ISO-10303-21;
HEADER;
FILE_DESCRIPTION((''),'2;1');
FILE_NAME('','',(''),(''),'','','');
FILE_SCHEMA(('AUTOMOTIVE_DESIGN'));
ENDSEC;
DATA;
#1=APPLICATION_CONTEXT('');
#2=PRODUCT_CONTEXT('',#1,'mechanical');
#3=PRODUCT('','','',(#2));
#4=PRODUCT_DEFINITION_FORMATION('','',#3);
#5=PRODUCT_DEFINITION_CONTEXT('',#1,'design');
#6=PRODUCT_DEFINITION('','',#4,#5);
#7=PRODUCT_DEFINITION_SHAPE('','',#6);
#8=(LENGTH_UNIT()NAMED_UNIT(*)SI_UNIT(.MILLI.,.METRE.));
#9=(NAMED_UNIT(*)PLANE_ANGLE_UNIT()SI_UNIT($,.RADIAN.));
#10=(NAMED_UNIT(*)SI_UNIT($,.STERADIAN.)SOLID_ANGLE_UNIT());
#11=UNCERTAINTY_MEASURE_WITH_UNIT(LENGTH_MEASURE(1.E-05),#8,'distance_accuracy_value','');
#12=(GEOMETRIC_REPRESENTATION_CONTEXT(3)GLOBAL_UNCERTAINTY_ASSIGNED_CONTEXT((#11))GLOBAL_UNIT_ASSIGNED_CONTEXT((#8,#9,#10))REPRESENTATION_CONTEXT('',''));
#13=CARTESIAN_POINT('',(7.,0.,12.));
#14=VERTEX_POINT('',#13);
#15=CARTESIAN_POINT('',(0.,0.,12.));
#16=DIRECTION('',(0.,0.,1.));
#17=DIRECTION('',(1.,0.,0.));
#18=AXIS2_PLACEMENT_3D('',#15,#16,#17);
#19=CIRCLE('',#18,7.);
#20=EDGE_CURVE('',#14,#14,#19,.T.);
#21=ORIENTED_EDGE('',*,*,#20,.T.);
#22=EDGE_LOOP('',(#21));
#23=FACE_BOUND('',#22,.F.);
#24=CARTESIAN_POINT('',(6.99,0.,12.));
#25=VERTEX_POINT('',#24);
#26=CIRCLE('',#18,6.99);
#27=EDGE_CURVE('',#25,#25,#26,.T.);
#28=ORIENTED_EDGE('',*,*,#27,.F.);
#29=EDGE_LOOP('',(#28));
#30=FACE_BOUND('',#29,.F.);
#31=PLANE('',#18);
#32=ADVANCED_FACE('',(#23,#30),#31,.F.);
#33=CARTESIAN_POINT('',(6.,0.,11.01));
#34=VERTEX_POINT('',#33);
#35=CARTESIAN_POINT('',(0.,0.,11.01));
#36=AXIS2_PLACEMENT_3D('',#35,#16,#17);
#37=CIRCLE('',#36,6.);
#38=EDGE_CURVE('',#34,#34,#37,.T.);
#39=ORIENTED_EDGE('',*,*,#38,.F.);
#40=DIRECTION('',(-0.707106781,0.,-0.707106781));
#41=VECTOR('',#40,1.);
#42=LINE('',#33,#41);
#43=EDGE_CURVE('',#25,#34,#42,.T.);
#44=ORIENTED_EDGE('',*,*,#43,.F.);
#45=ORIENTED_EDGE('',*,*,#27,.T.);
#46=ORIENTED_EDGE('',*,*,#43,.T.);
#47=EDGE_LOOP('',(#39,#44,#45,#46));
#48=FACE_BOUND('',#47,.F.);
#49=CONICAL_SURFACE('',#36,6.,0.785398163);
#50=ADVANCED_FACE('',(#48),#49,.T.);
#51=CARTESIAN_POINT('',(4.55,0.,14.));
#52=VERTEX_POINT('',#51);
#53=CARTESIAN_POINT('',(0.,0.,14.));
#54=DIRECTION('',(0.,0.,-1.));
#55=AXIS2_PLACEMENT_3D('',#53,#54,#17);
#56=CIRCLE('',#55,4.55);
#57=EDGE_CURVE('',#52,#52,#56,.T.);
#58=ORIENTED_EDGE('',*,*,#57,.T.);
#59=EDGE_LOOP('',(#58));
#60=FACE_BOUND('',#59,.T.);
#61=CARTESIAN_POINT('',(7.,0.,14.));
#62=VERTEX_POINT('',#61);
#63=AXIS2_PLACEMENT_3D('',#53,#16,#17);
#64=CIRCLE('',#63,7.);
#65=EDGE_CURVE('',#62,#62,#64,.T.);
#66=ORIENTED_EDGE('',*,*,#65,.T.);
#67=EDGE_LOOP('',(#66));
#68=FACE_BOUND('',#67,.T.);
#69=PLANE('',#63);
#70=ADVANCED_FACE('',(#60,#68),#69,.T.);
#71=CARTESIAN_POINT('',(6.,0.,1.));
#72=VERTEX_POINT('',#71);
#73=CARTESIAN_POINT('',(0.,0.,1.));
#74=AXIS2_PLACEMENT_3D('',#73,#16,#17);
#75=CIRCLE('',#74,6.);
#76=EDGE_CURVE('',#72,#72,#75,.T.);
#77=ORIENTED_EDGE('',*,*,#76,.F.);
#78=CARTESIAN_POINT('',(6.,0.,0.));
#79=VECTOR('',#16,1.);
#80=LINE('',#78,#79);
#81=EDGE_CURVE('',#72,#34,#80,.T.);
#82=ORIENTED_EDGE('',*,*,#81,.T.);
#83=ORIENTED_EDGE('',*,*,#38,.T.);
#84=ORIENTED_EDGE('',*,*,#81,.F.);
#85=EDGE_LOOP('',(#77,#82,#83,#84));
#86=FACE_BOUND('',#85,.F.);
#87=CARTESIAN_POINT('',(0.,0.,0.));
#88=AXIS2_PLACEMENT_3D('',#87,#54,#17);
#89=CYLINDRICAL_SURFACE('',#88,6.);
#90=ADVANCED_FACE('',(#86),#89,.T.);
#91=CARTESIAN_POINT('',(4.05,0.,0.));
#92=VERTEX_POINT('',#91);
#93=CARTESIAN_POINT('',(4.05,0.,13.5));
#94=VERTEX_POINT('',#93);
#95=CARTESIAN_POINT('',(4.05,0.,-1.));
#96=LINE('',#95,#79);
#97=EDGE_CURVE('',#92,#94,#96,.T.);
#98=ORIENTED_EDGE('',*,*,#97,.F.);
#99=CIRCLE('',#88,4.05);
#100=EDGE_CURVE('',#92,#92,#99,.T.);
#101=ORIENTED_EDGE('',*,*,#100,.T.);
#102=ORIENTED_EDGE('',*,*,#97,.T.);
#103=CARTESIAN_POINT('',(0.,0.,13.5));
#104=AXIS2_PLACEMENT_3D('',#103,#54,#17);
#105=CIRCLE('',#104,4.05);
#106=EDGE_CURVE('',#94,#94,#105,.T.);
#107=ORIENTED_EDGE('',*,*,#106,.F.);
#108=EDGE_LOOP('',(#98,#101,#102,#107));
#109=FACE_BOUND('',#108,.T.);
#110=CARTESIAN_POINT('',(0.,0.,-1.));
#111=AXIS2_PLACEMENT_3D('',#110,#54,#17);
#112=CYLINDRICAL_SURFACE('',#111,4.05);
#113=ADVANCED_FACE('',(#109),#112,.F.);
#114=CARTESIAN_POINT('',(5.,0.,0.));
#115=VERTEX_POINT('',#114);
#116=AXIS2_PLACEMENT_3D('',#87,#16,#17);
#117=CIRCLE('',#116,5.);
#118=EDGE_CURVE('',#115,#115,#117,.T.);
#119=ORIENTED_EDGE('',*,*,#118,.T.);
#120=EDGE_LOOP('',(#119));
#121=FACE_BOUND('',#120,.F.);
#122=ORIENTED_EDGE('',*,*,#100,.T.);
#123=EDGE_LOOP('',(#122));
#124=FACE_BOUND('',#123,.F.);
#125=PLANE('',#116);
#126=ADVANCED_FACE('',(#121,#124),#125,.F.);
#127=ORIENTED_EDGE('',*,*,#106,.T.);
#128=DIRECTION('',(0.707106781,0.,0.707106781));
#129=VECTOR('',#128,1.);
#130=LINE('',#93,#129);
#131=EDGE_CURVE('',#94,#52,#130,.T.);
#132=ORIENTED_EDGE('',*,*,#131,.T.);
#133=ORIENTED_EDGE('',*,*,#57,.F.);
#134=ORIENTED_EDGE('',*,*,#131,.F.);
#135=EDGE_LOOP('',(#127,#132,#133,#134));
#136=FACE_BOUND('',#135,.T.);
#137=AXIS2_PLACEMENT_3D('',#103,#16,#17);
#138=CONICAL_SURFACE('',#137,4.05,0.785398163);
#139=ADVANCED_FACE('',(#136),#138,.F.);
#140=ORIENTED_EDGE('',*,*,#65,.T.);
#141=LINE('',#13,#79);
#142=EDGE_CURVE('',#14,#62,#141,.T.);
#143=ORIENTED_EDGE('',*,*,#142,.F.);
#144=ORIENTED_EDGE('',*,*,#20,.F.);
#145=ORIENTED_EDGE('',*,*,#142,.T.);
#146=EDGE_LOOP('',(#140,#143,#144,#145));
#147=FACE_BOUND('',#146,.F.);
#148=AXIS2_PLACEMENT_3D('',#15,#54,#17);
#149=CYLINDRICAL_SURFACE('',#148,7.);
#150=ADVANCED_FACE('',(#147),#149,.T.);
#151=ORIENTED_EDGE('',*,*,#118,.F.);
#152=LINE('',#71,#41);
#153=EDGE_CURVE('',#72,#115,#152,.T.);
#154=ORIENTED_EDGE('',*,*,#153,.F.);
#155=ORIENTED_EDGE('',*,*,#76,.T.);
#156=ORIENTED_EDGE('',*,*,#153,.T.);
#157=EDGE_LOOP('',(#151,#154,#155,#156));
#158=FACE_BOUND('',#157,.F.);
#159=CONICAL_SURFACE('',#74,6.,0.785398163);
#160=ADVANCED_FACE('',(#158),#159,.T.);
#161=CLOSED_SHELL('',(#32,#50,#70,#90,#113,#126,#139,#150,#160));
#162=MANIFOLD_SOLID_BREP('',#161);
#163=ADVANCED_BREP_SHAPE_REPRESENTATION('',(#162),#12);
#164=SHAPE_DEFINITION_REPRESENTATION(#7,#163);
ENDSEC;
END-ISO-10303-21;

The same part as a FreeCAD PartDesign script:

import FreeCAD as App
import Part
import Sketcher

V = App.Vector
Q = App.Units.Quantity


def edges_at(feature, points):
    """Names of the edges that pass closest to the given points."""
    edges = feature.Shape.Edges
    near = lambda p: min(range(len(edges)), key=lambda i: edges[i].distToShape(Part.Vertex(*p))[0])
    return sorted({f"Edge{near(p) + 1}" for p in points})

doc = App.newDocument("Part")
body = doc.addObject("PartDesign::Body", "Body")

# Sketch on XY plane
sketch1 = doc.addObject("Sketcher::SketchObject", "Sketch")
body.addObject(sketch1)
sketch1.AttachmentSupport = (doc.XY_Plane, [""])
sketch1.MapMode = "FlatFace"
sketch1.AttachmentOffset = App.Placement(V(0, 0, -1), App.Rotation())
sketch1.addGeometry(Part.Circle(V(0, 0, 0), V(0, 0, 1), 4), False)
sketch1.addConstraint([
    Sketcher.Constraint("Coincident", 0, 3, -1, 1),
    Sketcher.Constraint("Diameter", 0, Q("8.1 mm")),
])
pad1 = doc.addObject("PartDesign::Pad", "Pad")
body.addObject(pad1)
pad1.Profile = sketch1
pad1.Length = 28
body2 = doc.addObject("PartDesign::Body", "Body001")

# Sketch on XY plane
sketch2 = doc.addObject("Sketcher::SketchObject", "Sketch001")
body2.addObject(sketch2)
sketch2.AttachmentSupport = (doc.getObject("XY_Plane001"), [""])
sketch2.MapMode = "FlatFace"
sketch2.addGeometry(Part.Circle(V(0, 0, 0), V(0, 0, 1), 6), False)
sketch2.addConstraint([
    Sketcher.Constraint("Coincident", 0, 3, -1, 1),
    Sketcher.Constraint("Diameter", 0, Q("12 mm")),
])
pad2 = doc.addObject("PartDesign::Pad", "Pad001")
body2.addObject(pad2)
pad2.Profile = sketch2
pad2.Length = 12

# Sketch on XY plane
sketch3 = doc.addObject("Sketcher::SketchObject", "Sketch002")
body2.addObject(sketch3)
sketch3.AttachmentSupport = (doc.getObject("XY_Plane001"), [""])
sketch3.MapMode = "FlatFace"
sketch3.AttachmentOffset = App.Placement(V(0, 0, 12), App.Rotation())
sketch3.addGeometry(Part.Circle(V(0, 0, 0), V(0, 0, 1), 7), False)
sketch3.addConstraint([
    Sketcher.Constraint("Coincident", 0, 3, -1, 1),
    Sketcher.Constraint("Diameter", 0, Q("14 mm")),
])
pad3 = doc.addObject("PartDesign::Pad", "Pad002")
body2.addObject(pad3)
pad3.Profile = sketch3
pad3.Length = 2
doc.recompute()

boolean = doc.addObject("PartDesign::Boolean", "Boolean")
body2.addObject(boolean)
boolean.Type = "Cut"
boolean.addObjects([body])
doc.recompute()

chamfer = doc.addObject("PartDesign::Chamfer", "Chamfer")
body2.addObject(chamfer)
chamfer.Base = (boolean, edges_at(boolean, [(-6, 0, 12)]))
chamfer.Size = 0.99
doc.recompute()

chamfer2 = doc.addObject("PartDesign::Chamfer", "Chamfer001")
body2.addObject(chamfer2)
chamfer2.Base = (chamfer, edges_at(chamfer, [(-6, 0, 0)]))
chamfer2.Size = 1
doc.recompute()

chamfer3 = doc.addObject("PartDesign::Chamfer", "Chamfer002")
body2.addObject(chamfer3)
chamfer3.Base = (chamfer2, edges_at(chamfer2, [(-4.05, 0, 14)]))
chamfer3.Size = 0.5

doc.recompute()
